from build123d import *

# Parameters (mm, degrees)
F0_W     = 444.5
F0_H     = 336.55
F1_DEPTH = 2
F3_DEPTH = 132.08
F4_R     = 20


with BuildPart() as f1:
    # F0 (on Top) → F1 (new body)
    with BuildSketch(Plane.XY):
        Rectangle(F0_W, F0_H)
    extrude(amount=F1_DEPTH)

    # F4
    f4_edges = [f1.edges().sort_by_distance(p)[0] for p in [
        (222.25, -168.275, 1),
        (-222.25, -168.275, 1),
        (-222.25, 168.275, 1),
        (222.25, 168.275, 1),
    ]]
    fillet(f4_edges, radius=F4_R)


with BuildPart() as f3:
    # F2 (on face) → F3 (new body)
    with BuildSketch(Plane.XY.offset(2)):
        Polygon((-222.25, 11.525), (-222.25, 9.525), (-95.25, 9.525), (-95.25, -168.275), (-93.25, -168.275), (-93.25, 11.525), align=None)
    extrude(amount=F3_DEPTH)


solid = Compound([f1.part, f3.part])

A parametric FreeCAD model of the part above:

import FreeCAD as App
import Part
import Sketcher

V = App.Vector
Q = App.Units.Quantity


def edges_at(feature, points):
    """Names of the edges that pass closest to the given points."""
    edges = feature.Shape.Edges
    near = lambda p: min(range(len(edges)), key=lambda i: edges[i].distToShape(Part.Vertex(*p))[0])
    return sorted({f"Edge{near(p) + 1}" for p in points})


def add_polygon(sketch, points):
    """Adds a closed chain of lines whose ends are joined by coincident constraints."""
    first, n = sketch.GeometryCount, len(points)
    for a, b in zip(points, points[1:] + points[:1]):
        sketch.addGeometry(Part.LineSegment(App.Vector(*a, 0), App.Vector(*b, 0)), False)
    for i in range(n):
        sketch.addConstraint(Sketcher.Constraint("Coincident", first + i, 2, first + (i + 1) % n, 1))

doc = App.newDocument("Part")
body = doc.addObject("PartDesign::Body", "Body")

# Sketch on XY plane
sketch1 = body.newObject("Sketcher::SketchObject", "Sketch")
sketch1.AttachmentSupport = (doc.getObject("XY_Plane"), [""])
sketch1.MapMode = "FlatFace"
add_polygon(sketch1, [(-222, 168), (-222, -168), (222, -168), (222, 168)])  # lines 0-3
sketch1.addConstraint([
    Sketcher.Constraint("Vertical", 0),
    Sketcher.Constraint("Horizontal", 1),
    Sketcher.Constraint("Vertical", 2),
    Sketcher.Constraint("Horizontal", 3),
    Sketcher.Constraint("Symmetric", 0, 2, 2, 2, -1, 1),
    Sketcher.Constraint("DistanceX", 1, 1, 1, 2, Q("17.5 in")),
    Sketcher.Constraint("DistanceY", 0, 2, 0, 1, Q("13.25 in")),
])
pad1 = body.newObject("PartDesign::Pad", "Pad")
pad1.Profile = sketch1
pad1.Length = 2
doc.recompute()

fillet = body.newObject("PartDesign::Fillet", "Fillet")
fillet.Base = (pad1, edges_at(pad1, [
    (222.25, -168.275, 1),
    (-222.25, -168.275, 1),
    (-222.25, 168.275, 1),
    (222.25, 168.275, 1),
]))
fillet.Radius = 20
body2 = doc.addObject("PartDesign::Body", "Body001")

# Sketch on XY plane
sketch2 = body2.newObject("Sketcher::SketchObject", "Sketch001")
sketch2.AttachmentSupport = (doc.getObject("XY_Plane001"), [""])
sketch2.MapMode = "FlatFace"
sketch2.AttachmentOffset = App.Placement(V(0, 0, 2), App.Rotation())
add_polygon(sketch2, [(-222.2, 11.5), (-222.2, 9.5), (-95.2, 9.5), (-95.2, -168.3), (-93.2, -168.3), (-93.2, 11.5)])  # lines 0-5
sketch2.addConstraint([
    Sketcher.Constraint("Vertical", 0),
    Sketcher.Constraint("Horizontal", 1),
    Sketcher.Constraint("Vertical", 2),
    Sketcher.Constraint("Horizontal", 3),
    Sketcher.Constraint("Vertical", 4),
    Sketcher.Constraint("Horizontal", 5),
    Sketcher.Constraint("Equal", 3, 0),
    Sketcher.Constraint("DistanceX", 1, 1, 1, 2, Q("5 in")),
    Sketcher.Constraint("DistanceY", 2, 2, 2, 1, Q("7 in")),
    Sketcher.Constraint("DistanceX", 0, 2, -1, 1, Q("8.75 in")),
    Sketcher.Constraint("DistanceY", -1, 1, 0, 2, Q("0.375 in")),
    Sketcher.Constraint("DistanceX", 3, 1, 3, 2, 2.0),
])
pad2 = body2.newObject("PartDesign::Pad", "Pad001")
pad2.Profile = sketch2
pad2.Length = Q("5.2 in")

doc.recompute()
